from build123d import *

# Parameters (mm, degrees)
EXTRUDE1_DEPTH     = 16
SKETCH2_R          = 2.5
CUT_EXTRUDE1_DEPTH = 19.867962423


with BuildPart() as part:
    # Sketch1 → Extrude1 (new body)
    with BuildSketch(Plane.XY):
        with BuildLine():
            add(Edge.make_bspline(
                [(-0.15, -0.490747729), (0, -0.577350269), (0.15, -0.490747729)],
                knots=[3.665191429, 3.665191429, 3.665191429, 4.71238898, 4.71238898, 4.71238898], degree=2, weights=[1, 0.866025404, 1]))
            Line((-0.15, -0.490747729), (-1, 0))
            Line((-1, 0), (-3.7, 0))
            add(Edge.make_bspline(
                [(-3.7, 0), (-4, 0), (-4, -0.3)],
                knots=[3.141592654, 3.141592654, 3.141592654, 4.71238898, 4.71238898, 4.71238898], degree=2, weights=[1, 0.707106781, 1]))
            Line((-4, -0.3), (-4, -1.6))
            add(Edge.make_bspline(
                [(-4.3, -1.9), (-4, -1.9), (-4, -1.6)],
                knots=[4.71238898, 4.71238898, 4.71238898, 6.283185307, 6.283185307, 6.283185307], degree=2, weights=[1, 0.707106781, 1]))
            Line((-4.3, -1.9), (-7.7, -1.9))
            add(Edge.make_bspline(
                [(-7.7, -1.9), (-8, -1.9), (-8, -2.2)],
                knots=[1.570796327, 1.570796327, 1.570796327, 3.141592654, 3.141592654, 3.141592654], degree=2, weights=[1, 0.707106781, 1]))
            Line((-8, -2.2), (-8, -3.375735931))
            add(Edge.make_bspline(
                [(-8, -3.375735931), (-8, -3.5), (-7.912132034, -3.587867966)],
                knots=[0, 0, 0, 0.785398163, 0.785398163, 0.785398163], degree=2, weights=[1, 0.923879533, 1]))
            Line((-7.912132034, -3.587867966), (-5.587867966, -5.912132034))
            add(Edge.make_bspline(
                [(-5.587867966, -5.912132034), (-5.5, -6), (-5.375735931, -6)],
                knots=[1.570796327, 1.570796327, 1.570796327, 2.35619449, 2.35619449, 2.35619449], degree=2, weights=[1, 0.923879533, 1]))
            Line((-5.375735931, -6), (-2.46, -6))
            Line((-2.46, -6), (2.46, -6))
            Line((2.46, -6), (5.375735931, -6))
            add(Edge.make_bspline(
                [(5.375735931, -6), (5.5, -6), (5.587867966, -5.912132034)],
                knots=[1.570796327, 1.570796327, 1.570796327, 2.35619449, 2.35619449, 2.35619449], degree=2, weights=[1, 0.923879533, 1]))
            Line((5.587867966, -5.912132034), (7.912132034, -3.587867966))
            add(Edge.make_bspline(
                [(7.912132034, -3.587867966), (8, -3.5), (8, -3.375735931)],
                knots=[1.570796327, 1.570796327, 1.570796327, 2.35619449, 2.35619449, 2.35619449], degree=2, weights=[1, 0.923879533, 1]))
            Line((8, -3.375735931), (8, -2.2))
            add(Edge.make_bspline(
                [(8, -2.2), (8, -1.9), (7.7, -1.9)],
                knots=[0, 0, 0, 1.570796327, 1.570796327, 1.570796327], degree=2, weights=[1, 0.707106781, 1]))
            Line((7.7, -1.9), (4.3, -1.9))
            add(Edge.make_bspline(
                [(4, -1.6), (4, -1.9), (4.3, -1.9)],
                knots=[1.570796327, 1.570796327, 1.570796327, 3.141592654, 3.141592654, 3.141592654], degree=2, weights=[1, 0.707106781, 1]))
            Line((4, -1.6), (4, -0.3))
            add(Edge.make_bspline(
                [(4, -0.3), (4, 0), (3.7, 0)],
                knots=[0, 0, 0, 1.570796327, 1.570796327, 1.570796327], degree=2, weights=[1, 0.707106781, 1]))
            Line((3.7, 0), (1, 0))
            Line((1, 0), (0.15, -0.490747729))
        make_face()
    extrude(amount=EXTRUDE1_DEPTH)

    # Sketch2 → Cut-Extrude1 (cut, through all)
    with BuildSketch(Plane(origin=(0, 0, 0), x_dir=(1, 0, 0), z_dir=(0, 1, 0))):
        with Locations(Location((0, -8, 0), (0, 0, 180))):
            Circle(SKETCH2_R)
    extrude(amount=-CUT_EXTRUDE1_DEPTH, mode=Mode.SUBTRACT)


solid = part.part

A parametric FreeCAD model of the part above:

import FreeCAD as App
import Part
import Sketcher
from FreeCAD import Vector

doc = App.newDocument("Part")
body = doc.addObject("PartDesign::Body", "Body")

sketch1 = body.newObject("Sketcher::SketchObject", "Sketch")
sketch1.AttachmentSupport = (doc.getObject("XY_Plane"), [""])
sketch1.MapMode = "FlatFace"
sketch1.addGeometry(Part.BSplineCurve([Vector(-0.15, -0.490748, 0), Vector(0, -0.57735, 0), Vector(0.15, -0.490748, 0)], [3, 3], [3.665191429, 4.71238898], False, 2, [1, 0.866025404, 1], False), False)
sketch1.addGeometry(Part.LineSegment(Vector(-0.15, -0.490748, 0), Vector(-1, 0, 0)), False)
sketch1.addGeometry(Part.LineSegment(Vector(-1, 0, 0), Vector(-3.7, 0, 0)), False)
sketch1.addGeometry(Part.BSplineCurve([Vector(-3.7, 0, 0), Vector(-4, 0, 0), Vector(-4, -0.3, 0)], [3, 3], [3.141592654, 4.71238898], False, 2, [1, 0.707106781, 1], False), False)
sketch1.addGeometry(Part.LineSegment(Vector(-4, -0.3, 0), Vector(-4, -1.6, 0)), False)
sketch1.addGeometry(Part.BSplineCurve([Vector(-4.3, -1.9, 0), Vector(-4, -1.9, 0), Vector(-4, -1.6, 0)], [3, 3], [4.71238898, 6.283185307], False, 2, [1, 0.707106781, 1], False), False)
sketch1.addGeometry(Part.LineSegment(Vector(-4.3, -1.9, 0), Vector(-7.7, -1.9, 0)), False)
sketch1.addGeometry(Part.BSplineCurve([Vector(-7.7, -1.9, 0), Vector(-8, -1.9, 0), Vector(-8, -2.2, 0)], [3, 3], [1.570796327, 3.141592654], False, 2, [1, 0.707106781, 1], False), False)
sketch1.addGeometry(Part.LineSegment(Vector(-8, -2.2, 0), Vector(-8, -3.375736, 0)), False)
sketch1.addGeometry(Part.BSplineCurve([Vector(-8, -3.375736, 0), Vector(-8, -3.5, 0), Vector(-7.912132, -3.587868, 0)], [3, 3], [0, 0.785398163], False, 2, [1, 0.923879533, 1], False), False)
sketch1.addGeometry(Part.LineSegment(Vector(-7.912132, -3.587868, 0), Vector(-5.587868, -5.912132, 0)), False)
sketch1.addGeometry(Part.BSplineCurve([Vector(-5.587868, -5.912132, 0), Vector(-5.5, -6, 0), Vector(-5.375736, -6, 0)], [3, 3], [1.570796327, 2.35619449], False, 2, [1, 0.923879533, 1], False), False)
sketch1.addGeometry(Part.LineSegment(Vector(-5.375736, -6, 0), Vector(5.375736, -6, 0)), False)
sketch1.addGeometry(Part.BSplineCurve([Vector(5.375736, -6, 0), Vector(5.5, -6, 0), Vector(5.587868, -5.912132, 0)], [3, 3], [1.570796327, 2.35619449], False, 2, [1, 0.923879533, 1], False), False)
sketch1.addGeometry(Part.LineSegment(Vector(5.587868, -5.912132, 0), Vector(7.912132, -3.587868, 0)), False)
sketch1.addGeometry(Part.BSplineCurve([Vector(7.912132, -3.587868, 0), Vector(8, -3.5, 0), Vector(8, -3.375736, 0)], [3, 3], [1.570796327, 2.35619449], False, 2, [1, 0.923879533, 1], False), False)
sketch1.addGeometry(Part.LineSegment(Vector(8, -3.375736, 0), Vector(8, -2.2, 0)), False)
sketch1.addGeometry(Part.BSplineCurve([Vector(8, -2.2, 0), Vector(8, -1.9, 0), Vector(7.7, -1.9, 0)], [3, 3], [0, 1.570796327], False, 2, [1, 0.707106781, 1], False), False)
sketch1.addGeometry(Part.LineSegment(Vector(7.7, -1.9, 0), Vector(4.3, -1.9, 0)), False)
sketch1.addGeometry(Part.BSplineCurve([Vector(4, -1.6, 0), Vector(4, -1.9, 0), Vector(4.3, -1.9, 0)], [3, 3], [1.570796327, 3.141592654], False, 2, [1, 0.707106781, 1], False), False)
sketch1.addGeometry(Part.LineSegment(Vector(4, -1.6, 0), Vector(4, -0.3, 0)), False)
sketch1.addGeometry(Part.BSplineCurve([Vector(4, -0.3, 0), Vector(4, 0, 0), Vector(3.7, 0, 0)], [3, 3], [0, 1.570796327], False, 2, [1, 0.707106781, 1], False), False)
sketch1.addGeometry(Part.LineSegment(Vector(3.7, 0, 0), Vector(1, 0, 0)), False)
sketch1.addGeometry(Part.LineSegment(Vector(1, 0, 0), Vector(0.15, -0.490748, 0)), False)
sketch1.addConstraint(Sketcher.Constraint("Block", 0))
sketch1.addConstraint(Sketcher.Constraint("Block", 3))
sketch1.addConstraint(Sketcher.Constraint("Block", 5))
sketch1.addConstraint(Sketcher.Constraint("Block", 7))
sketch1.addConstraint(Sketcher.Constraint("Block", 9))
sketch1.addConstraint(Sketcher.Constraint("Block", 11))
sketch1.addConstraint(Sketcher.Constraint("Block", 13))
sketch1.addConstraint(Sketcher.Constraint("Block", 15))
sketch1.addConstraint(Sketcher.Constraint("Block", 17))
sketch1.addConstraint(Sketcher.Constraint("Block", 19))
sketch1.addConstraint(Sketcher.Constraint("Block", 21))
sketch1.addConstraint(Sketcher.Constraint("Coincident", 0, 1, 1, 1))
sketch1.addConstraint(Sketcher.Constraint("Coincident", 1, 2, 2, 1))
sketch1.addConstraint(Sketcher.Constraint("Coincident", 2, 2, 3, 1))
sketch1.addConstraint(Sketcher.Constraint("Coincident", 3, 2, 4, 1))
sketch1.addConstraint(Sketcher.Constraint("Coincident", 4, 2, 5, 2))
sketch1.addConstraint(Sketcher.Constraint("Coincident", 5, 1, 6, 1))
sketch1.addConstraint(Sketcher.Constraint("Coincident", 6, 2, 7, 1))
sketch1.addConstraint(Sketcher.Constraint("Coincident", 7, 2, 8, 1))
sketch1.addConstraint(Sketcher.Constraint("Coincident", 8, 2, 9, 1))
sketch1.addConstraint(Sketcher.Constraint("Coincident", 9, 2, 10, 1))
sketch1.addConstraint(Sketcher.Constraint("Coincident", 10, 2, 11, 1))
sketch1.addConstraint(Sketcher.Constraint("Coincident", 11, 2, 12, 1))
sketch1.addConstraint(Sketcher.Constraint("Coincident", 12, 2, 13, 1))
sketch1.addConstraint(Sketcher.Constraint("Coincident", 13, 2, 14, 1))
sketch1.addConstraint(Sketcher.Constraint("Coincident", 14, 2, 15, 1))
sketch1.addConstraint(Sketcher.Constraint("Coincident", 15, 2, 16, 1))
sketch1.addConstraint(Sketcher.Constraint("Coincident", 16, 2, 17, 1))
sketch1.addConstraint(Sketcher.Constraint("Coincident", 17, 2, 18, 1))
sketch1.addConstraint(Sketcher.Constraint("Coincident", 18, 2, 19, 2))
sketch1.addConstraint(Sketcher.Constraint("Coincident", 19, 1, 20, 1))
sketch1.addConstraint(Sketcher.Constraint("Coincident", 20, 2, 21, 1))
sketch1.addConstraint(Sketcher.Constraint("Coincident", 21, 2, 22, 1))
sketch1.addConstraint(Sketcher.Constraint("Coincident", 22, 2, 23, 1))
sketch1.addConstraint(Sketcher.Constraint("Coincident", 23, 2, 0, 2))
sketch1.addConstraint(Sketcher.Constraint("Horizontal", 2))
sketch1.addConstraint(Sketcher.Constraint("Horizontal", 22))
sketch1.addConstraint(Sketcher.Constraint("DistanceX", 2, 2, 2, 1, 2.7))
sketch1.addConstraint(Sketcher.Constraint("DistanceX", 22, 2, 22, 1, 2.7))
pad1 = body.newObject("PartDesign::Pad", "Pad")
pad1.Profile = sketch1
pad1.Length = 16

sketch2 = body.newObject("Sketcher::SketchObject", "Sketch001")
sketch2.AttachmentSupport = (doc.getObject("XZ_Plane"), [""])
sketch2.MapMode = "FlatFace"
sketch2.addGeometry(Part.Circle(Vector(0, 8, 0), Vector(0, 0, 1), 2.5), False)
sketch2.addConstraint(Sketcher.Constraint("PointOnObject", 0, 3, -2))
sketch2.addConstraint(Sketcher.Constraint("Diameter", 0, 5.0))
sketch2.addConstraint(Sketcher.Constraint("DistanceY", -1, 1, 0, 3, 8.0))
pocket1 = body.newObject("PartDesign::Pocket", "Pocket")
pocket1.Profile = sketch2
pocket1.Type = "ThroughAll"
pocket1.Reversed = True

doc.recompute()
